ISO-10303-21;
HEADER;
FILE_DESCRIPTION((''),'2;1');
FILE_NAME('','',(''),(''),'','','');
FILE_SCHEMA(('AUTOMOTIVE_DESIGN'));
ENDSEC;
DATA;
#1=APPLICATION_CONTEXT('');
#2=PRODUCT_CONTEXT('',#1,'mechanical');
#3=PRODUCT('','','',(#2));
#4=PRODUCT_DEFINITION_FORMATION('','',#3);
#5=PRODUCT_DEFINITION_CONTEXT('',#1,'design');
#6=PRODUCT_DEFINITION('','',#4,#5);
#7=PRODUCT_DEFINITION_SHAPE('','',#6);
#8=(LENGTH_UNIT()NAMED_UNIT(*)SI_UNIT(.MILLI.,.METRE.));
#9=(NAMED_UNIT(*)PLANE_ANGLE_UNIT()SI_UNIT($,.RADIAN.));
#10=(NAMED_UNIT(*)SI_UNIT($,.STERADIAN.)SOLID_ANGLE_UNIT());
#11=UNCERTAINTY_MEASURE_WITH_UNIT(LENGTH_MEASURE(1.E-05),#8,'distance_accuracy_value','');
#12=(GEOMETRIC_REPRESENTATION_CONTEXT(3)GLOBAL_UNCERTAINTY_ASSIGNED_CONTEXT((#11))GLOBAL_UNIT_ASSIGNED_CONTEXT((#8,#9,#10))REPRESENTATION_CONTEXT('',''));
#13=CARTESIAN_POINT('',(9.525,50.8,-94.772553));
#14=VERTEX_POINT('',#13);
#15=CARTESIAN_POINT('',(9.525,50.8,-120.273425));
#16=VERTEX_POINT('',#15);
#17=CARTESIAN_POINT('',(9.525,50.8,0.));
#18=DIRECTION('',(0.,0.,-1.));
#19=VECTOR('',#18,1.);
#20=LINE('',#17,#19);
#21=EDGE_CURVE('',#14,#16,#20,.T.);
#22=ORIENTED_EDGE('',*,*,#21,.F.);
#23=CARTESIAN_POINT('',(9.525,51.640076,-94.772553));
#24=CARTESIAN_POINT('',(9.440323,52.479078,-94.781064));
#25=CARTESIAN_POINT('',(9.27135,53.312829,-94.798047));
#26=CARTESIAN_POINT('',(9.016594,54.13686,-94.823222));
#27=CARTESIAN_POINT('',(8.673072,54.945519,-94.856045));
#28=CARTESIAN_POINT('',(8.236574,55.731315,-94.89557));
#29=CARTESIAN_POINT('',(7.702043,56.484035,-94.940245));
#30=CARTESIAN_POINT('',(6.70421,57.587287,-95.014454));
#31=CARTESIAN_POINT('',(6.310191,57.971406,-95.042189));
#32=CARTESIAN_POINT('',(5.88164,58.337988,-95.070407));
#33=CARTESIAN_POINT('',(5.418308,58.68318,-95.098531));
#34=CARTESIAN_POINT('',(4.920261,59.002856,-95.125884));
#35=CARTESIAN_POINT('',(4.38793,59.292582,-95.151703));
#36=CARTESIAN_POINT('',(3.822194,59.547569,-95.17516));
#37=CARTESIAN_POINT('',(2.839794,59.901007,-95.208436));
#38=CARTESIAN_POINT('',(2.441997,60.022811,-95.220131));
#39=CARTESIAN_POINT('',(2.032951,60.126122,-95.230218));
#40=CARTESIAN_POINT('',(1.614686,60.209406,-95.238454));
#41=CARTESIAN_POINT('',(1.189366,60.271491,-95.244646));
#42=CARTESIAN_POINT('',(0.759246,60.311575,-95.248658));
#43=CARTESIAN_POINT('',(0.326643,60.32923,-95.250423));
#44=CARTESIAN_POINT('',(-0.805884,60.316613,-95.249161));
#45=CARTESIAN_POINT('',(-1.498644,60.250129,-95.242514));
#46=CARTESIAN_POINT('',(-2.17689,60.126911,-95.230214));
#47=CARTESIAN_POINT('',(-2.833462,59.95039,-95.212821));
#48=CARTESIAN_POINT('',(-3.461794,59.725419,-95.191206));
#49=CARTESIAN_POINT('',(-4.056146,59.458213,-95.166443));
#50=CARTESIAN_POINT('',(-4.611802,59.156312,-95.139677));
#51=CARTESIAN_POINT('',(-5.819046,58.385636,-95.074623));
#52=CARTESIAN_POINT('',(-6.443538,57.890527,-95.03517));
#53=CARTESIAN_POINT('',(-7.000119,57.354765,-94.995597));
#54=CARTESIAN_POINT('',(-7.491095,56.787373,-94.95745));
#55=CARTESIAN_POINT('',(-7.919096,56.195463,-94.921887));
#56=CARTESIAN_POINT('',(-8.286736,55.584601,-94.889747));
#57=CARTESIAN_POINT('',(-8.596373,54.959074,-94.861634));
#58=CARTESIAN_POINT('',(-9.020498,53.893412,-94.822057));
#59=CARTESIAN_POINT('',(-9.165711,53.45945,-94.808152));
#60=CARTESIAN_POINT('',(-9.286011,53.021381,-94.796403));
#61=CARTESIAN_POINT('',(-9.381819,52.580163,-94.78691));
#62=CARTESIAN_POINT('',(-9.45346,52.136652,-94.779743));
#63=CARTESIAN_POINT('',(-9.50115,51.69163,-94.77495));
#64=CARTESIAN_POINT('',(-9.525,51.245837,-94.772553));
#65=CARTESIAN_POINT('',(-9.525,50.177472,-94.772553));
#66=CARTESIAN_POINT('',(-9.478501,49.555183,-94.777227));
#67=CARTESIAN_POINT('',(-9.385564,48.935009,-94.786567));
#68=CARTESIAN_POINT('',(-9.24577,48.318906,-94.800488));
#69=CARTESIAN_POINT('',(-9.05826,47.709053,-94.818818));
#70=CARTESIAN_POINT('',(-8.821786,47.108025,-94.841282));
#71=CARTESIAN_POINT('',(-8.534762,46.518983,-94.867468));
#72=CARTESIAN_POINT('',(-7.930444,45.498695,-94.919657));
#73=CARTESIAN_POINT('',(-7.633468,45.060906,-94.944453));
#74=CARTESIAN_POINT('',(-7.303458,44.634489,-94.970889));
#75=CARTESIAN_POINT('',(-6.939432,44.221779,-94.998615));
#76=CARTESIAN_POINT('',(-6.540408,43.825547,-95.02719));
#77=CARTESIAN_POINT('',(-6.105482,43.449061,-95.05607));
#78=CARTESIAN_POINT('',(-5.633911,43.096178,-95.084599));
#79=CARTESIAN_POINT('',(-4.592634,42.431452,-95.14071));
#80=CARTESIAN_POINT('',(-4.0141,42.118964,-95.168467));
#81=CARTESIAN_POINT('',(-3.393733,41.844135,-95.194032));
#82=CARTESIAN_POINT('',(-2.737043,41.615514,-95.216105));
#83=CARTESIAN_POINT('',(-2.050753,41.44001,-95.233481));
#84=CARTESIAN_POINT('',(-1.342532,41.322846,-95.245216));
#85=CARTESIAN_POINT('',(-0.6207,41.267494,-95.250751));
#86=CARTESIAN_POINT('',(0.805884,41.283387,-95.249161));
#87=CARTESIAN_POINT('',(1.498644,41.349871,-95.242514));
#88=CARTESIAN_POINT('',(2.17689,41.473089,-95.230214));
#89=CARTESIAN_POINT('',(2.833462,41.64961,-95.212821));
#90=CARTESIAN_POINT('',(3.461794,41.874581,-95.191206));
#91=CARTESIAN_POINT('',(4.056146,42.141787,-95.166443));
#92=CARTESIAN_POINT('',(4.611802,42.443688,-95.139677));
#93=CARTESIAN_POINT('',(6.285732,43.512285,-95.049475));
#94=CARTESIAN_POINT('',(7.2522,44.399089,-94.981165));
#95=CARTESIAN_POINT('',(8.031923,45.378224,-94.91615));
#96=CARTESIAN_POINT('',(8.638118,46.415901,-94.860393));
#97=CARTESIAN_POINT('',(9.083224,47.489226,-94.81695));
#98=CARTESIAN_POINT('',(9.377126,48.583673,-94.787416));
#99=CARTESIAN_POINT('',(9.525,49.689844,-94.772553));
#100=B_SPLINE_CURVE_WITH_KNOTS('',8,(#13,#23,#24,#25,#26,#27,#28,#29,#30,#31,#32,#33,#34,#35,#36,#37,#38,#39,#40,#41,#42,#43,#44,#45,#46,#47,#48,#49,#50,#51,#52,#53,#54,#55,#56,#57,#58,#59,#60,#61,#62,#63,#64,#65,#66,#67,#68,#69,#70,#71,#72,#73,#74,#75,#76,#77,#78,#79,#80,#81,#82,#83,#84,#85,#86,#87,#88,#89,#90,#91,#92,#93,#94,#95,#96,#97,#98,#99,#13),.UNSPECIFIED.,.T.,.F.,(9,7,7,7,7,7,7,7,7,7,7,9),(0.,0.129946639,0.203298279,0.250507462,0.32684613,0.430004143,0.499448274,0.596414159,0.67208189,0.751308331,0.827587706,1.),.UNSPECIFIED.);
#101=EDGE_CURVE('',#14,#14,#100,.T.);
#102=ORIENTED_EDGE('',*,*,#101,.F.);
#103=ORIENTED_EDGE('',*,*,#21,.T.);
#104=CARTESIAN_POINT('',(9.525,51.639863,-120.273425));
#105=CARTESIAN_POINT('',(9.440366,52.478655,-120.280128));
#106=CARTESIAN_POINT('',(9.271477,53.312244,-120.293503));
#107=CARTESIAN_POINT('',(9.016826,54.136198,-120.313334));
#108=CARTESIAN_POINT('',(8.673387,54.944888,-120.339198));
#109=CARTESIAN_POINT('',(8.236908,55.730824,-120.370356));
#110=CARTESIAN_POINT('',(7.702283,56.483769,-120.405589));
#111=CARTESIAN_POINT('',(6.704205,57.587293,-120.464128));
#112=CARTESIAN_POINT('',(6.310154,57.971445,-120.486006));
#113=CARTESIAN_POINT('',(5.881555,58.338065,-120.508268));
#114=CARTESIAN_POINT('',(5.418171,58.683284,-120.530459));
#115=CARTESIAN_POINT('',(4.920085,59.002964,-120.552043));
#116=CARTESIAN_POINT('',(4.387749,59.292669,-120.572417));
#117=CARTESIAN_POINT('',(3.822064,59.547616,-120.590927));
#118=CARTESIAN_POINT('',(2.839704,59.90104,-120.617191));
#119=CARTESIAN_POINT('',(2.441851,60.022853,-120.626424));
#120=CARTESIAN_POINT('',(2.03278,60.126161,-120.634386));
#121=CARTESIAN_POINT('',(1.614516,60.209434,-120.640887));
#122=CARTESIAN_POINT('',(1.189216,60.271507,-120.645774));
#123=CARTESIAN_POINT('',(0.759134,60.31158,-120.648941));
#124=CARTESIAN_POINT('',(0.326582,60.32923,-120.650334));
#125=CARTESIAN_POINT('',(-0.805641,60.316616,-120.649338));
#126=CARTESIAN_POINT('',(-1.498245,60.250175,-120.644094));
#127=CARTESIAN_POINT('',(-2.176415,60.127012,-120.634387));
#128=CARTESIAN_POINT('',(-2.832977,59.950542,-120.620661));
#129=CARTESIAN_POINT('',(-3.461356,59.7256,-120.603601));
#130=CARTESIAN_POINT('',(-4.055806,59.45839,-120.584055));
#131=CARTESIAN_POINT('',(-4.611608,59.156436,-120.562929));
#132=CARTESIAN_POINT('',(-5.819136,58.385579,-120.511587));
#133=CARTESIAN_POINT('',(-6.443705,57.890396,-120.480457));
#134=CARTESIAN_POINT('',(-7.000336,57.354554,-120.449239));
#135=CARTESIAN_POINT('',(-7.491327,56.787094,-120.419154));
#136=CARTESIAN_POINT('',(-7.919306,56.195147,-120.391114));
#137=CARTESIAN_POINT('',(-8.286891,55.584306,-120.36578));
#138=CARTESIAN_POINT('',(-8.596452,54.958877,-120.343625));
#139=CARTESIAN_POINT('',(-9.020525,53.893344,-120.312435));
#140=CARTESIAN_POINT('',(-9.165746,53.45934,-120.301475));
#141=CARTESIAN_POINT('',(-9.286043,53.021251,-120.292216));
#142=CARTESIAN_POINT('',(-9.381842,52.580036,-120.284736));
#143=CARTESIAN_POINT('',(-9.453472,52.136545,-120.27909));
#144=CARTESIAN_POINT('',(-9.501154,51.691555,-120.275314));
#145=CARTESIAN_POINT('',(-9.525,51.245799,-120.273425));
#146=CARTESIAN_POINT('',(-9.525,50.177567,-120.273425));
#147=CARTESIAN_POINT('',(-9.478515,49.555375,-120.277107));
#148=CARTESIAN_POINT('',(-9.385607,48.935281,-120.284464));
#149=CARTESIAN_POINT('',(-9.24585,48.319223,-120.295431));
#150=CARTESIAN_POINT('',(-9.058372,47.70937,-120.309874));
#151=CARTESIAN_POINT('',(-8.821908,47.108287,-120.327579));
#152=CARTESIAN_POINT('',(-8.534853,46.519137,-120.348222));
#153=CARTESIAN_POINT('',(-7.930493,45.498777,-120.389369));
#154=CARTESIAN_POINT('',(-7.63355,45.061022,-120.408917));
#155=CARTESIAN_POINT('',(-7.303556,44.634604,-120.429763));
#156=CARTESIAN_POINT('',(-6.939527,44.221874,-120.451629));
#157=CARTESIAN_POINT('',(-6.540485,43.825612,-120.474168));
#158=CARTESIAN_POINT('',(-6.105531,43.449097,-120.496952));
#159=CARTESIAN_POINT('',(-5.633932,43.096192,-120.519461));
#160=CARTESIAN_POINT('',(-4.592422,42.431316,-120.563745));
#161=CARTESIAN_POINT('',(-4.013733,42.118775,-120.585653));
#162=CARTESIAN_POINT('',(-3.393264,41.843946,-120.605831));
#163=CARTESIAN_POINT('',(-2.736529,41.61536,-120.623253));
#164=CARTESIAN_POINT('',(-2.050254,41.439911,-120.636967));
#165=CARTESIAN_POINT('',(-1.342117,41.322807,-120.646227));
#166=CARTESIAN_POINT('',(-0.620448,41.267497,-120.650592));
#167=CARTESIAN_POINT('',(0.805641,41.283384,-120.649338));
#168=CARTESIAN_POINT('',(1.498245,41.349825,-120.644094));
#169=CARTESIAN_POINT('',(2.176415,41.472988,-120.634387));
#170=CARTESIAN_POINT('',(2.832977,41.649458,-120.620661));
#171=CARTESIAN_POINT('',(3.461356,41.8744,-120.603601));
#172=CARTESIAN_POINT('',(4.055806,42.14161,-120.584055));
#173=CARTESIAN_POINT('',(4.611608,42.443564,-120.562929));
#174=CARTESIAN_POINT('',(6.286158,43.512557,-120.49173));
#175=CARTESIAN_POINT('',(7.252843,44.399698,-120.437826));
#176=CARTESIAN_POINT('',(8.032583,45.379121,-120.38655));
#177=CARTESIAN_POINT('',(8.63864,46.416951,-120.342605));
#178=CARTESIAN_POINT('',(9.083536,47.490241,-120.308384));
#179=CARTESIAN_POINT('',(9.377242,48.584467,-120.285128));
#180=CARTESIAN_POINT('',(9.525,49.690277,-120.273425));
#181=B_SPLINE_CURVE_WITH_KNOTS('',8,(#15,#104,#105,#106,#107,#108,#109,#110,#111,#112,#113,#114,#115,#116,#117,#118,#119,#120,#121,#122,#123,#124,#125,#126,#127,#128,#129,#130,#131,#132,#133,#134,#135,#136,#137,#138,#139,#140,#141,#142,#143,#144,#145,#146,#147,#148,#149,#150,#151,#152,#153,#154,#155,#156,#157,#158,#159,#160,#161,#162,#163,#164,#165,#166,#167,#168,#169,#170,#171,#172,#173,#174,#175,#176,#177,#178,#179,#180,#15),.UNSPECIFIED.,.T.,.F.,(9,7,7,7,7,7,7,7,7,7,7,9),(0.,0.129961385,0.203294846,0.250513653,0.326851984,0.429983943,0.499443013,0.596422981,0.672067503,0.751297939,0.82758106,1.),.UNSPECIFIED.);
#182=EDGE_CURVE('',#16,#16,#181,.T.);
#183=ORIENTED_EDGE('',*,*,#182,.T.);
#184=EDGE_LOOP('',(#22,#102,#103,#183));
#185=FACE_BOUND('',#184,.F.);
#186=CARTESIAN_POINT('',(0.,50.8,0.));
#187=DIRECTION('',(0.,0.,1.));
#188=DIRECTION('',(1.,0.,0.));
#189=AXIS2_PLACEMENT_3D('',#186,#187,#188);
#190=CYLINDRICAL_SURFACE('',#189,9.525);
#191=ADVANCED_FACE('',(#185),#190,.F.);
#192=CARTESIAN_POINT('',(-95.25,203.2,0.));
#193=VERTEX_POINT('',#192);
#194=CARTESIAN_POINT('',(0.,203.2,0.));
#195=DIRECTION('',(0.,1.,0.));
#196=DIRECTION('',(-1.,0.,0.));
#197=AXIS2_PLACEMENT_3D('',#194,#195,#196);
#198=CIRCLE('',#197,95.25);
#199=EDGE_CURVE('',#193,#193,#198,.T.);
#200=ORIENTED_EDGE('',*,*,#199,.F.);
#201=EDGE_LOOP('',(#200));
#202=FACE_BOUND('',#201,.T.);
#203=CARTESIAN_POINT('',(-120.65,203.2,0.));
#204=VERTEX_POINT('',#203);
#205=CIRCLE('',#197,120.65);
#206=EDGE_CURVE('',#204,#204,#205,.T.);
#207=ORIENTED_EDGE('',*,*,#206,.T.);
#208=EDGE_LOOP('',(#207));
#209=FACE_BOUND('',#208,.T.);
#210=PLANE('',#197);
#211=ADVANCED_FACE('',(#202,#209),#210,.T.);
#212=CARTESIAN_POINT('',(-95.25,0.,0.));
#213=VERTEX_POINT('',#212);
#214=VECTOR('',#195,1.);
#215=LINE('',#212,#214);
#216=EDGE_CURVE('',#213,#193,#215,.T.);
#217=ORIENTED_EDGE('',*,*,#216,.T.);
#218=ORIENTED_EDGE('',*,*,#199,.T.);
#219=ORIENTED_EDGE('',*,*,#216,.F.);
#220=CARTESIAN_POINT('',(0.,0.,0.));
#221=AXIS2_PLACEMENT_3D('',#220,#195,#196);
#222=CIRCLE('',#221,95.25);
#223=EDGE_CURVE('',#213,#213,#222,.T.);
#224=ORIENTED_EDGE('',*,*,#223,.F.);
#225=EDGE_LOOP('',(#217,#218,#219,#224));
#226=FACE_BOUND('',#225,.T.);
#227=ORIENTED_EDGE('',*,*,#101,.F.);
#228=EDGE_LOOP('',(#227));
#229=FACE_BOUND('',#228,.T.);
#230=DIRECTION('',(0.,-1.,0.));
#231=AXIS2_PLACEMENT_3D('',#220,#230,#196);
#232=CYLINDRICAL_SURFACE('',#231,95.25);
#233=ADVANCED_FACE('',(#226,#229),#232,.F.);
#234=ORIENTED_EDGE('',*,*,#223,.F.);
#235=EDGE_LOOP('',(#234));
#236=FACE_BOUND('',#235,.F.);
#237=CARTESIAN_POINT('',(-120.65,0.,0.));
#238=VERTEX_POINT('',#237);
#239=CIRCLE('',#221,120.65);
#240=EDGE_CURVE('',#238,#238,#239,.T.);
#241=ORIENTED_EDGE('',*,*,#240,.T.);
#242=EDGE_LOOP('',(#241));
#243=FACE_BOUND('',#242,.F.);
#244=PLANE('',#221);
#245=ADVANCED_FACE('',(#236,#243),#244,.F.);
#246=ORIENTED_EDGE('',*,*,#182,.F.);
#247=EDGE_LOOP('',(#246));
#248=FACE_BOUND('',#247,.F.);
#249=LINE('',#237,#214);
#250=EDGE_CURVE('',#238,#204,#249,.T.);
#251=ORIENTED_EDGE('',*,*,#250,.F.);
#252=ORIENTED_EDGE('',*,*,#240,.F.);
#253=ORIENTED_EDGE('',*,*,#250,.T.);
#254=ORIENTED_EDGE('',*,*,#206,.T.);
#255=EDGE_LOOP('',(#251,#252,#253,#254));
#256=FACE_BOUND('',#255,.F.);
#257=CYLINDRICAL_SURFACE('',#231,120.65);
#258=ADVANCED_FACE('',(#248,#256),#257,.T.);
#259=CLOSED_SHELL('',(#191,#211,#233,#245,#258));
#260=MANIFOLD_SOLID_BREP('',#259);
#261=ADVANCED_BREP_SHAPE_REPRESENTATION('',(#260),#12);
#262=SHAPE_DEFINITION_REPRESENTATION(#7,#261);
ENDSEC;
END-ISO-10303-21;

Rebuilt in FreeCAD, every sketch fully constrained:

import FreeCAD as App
import Part
import Sketcher
from FreeCAD import Vector
Q = App.Units.Quantity

doc = App.newDocument("Part")
params = doc.addObject("Spreadsheet::Sheet", "Params")
for row, (alias, value) in enumerate([
    ("sketch1_diameter", "7.5 in"),
    ("sketch1_diameter2", "9.5 in"),
    ("pad1_length", "8 in"),
    ("sketch2_diameter", "0.75 in"),
], start=1):
    params.set(f"A{row}", alias)
    params.set(f"B{row}", "=" + value)
    params.setAlias(f"B{row}", alias)

body = doc.addObject("PartDesign::Body", "Body")

# Sketch on XZ plane
sketch1 = doc.addObject("Sketcher::SketchObject", "Sketch")
body.addObject(sketch1)
sketch1.AttachmentSupport = (doc.XZ_Plane, [""])
sketch1.MapMode = "FlatFace"
sketch1.addGeometry([
    Part.Circle(Vector(0, 0, 0), Vector(0, 0, 1), 121),
    Part.Circle(Vector(0, 0, 0), Vector(0, 0, 1), 95),
], False)
sketch1.addConstraint([
    Sketcher.Constraint("Coincident", 0, 3, -1, 1),
    Sketcher.Constraint("Coincident", 1, 3, -1, 1),
    Sketcher.Constraint("Diameter", 1, Q("7.5 in")),
    Sketcher.Constraint("Diameter", 0, Q("9.5 in")),
])
sketch1.setExpression("Constraints[2]", "Params.sketch1_diameter")
sketch1.setExpression("Constraints[3]", "Params.sketch1_diameter2")
pad1 = doc.addObject("PartDesign::Pad", "Pad")
body.addObject(pad1)
pad1.Profile = sketch1
pad1.setExpression("Length", "Params.pad1_length")
pad1.Reversed = True

# Sketch on XY plane
sketch2 = doc.addObject("Sketcher::SketchObject", "Sketch001")
body.addObject(sketch2)
sketch2.AttachmentSupport = (doc.XY_Plane, [""])
sketch2.MapMode = "FlatFace"
sketch2.addGeometry(Part.Circle(Vector(0, 51, 0), Vector(0, 0, 1), 10), False)
sketch2.addConstraint([
    Sketcher.Constraint("PointOnObject", 0, 3, -2),
    Sketcher.Constraint("Diameter", 0, Q("0.75 in")),
    Sketcher.Constraint("DistanceY", -1, 1, 0, 3, Q("2 in")),
])
sketch2.setExpression("Constraints[1]", "Params.sketch2_diameter")
pocket1 = doc.addObject("PartDesign::Pocket", "Pocket")
body.addObject(pocket1)
pocket1.Profile = sketch2
pocket1.Type = "ThroughAll"

doc.recompute()
